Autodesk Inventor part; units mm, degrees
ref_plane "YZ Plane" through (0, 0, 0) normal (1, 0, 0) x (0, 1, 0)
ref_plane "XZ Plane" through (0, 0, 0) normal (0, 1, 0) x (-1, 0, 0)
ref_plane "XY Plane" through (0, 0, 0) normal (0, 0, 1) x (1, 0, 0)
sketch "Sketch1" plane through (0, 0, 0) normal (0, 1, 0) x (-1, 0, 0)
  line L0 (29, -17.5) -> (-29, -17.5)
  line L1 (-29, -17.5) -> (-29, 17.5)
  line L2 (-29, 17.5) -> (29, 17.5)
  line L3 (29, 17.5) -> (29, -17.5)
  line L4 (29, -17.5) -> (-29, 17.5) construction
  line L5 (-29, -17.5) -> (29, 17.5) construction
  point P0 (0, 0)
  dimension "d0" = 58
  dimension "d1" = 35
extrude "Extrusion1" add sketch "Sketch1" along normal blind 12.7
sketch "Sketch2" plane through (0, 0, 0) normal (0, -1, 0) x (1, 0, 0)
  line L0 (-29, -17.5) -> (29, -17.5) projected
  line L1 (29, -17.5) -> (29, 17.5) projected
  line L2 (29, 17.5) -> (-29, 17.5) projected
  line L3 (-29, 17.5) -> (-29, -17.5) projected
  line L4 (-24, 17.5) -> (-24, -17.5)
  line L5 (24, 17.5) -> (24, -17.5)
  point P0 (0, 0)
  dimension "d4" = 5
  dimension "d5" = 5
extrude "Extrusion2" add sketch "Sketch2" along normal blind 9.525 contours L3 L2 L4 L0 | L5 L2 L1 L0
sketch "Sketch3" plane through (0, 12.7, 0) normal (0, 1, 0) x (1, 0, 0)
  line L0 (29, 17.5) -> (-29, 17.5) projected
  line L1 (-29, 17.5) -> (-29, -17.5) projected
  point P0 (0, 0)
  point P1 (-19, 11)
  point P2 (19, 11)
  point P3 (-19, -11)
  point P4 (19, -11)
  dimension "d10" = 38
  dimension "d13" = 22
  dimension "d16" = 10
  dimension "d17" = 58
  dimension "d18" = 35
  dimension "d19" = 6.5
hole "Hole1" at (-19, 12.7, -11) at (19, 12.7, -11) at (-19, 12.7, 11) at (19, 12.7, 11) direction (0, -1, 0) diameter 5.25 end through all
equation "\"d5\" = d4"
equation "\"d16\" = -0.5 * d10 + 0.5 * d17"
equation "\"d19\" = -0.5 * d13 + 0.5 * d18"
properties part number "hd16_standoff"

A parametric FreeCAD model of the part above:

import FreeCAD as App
import Part
import Sketcher
from FreeCAD import Vector

doc = App.newDocument("Part")
body = doc.addObject("PartDesign::Body", "Body")

sketch1 = body.newObject("Sketcher::SketchObject", "Sketch")
sketch1.AttachmentSupport = (doc.getObject("XZ_Plane"), [""])
sketch1.MapMode = "FlatFace"
sketch1.addGeometry(Part.LineSegment(Vector(29, -17.5, 0), Vector(-29, -17.5, 0)), False)
sketch1.addGeometry(Part.LineSegment(Vector(-29, -17.5, 0), Vector(-29, 17.5, 0)), False)
sketch1.addGeometry(Part.LineSegment(Vector(-29, 17.5, 0), Vector(29, 17.5, 0)), False)
sketch1.addGeometry(Part.LineSegment(Vector(29, 17.5, 0), Vector(29, -17.5, 0)), False)
sketch1.addConstraint(Sketcher.Constraint("Coincident", 0, 2, 1, 1))
sketch1.addConstraint(Sketcher.Constraint("Coincident", 1, 2, 2, 1))
sketch1.addConstraint(Sketcher.Constraint("Coincident", 2, 2, 3, 1))
sketch1.addConstraint(Sketcher.Constraint("Coincident", 3, 2, 0, 1))
sketch1.addConstraint(Sketcher.Constraint("Horizontal", 0))
sketch1.addConstraint(Sketcher.Constraint("Vertical", 1))
sketch1.addConstraint(Sketcher.Constraint("Horizontal", 2))
sketch1.addConstraint(Sketcher.Constraint("Vertical", 3))
sketch1.addConstraint(Sketcher.Constraint("Symmetric", 0, 2, 2, 2, -1, 1))
sketch1.addConstraint(Sketcher.Constraint("DistanceX", 0, 2, 0, 1, 58.0))
sketch1.addConstraint(Sketcher.Constraint("DistanceY", 1, 1, 1, 2, 35.0))
pad1 = body.newObject("PartDesign::Pad", "Pad")
pad1.Profile = sketch1
pad1.Length = 12.7
pad1.Reversed = True

sketch2 = body.newObject("Sketcher::SketchObject", "Sketch001")
sketch2.AttachmentSupport = (doc.getObject("XZ_Plane"), [""])
sketch2.MapMode = "FlatFace"
sketch2.addGeometry(Part.LineSegment(Vector(-29, 17.5, 0), Vector(-29, -17.5, 0)), False)
sketch2.addGeometry(Part.LineSegment(Vector(-29, -17.5, 0), Vector(-24, -17.5, 0)), False)
sketch2.addGeometry(Part.LineSegment(Vector(-24, -17.5, 0), Vector(-24, 17.5, 0)), False)
sketch2.addGeometry(Part.LineSegment(Vector(-24, 17.5, 0), Vector(-29, 17.5, 0)), False)
sketch2.addGeometry(Part.LineSegment(Vector(24, 17.5, 0), Vector(24, -17.5, 0)), False)
sketch2.addGeometry(Part.LineSegment(Vector(24, -17.5, 0), Vector(29, -17.5, 0)), False)
sketch2.addGeometry(Part.LineSegment(Vector(29, -17.5, 0), Vector(29, 17.5, 0)), False)
sketch2.addGeometry(Part.LineSegment(Vector(29, 17.5, 0), Vector(24, 17.5, 0)), False)
sketch2.addConstraint(Sketcher.Constraint("Coincident", 0, 2, 1, 1))
sketch2.addConstraint(Sketcher.Constraint("Coincident", 1, 2, 2, 1))
sketch2.addConstraint(Sketcher.Constraint("Coincident", 2, 2, 3, 1))
sketch2.addConstraint(Sketcher.Constraint("Coincident", 3, 2, 0, 1))
sketch2.addConstraint(Sketcher.Constraint("Coincident", 4, 2, 5, 1))
sketch2.addConstraint(Sketcher.Constraint("Coincident", 5, 2, 6, 1))
sketch2.addConstraint(Sketcher.Constraint("Coincident", 6, 2, 7, 1))
sketch2.addConstraint(Sketcher.Constraint("Coincident", 7, 2, 4, 1))
sketch2.addConstraint(Sketcher.Constraint("Vertical", 0))
sketch2.addConstraint(Sketcher.Constraint("Horizontal", 1))
sketch2.addConstraint(Sketcher.Constraint("Vertical", 2))
sketch2.addConstraint(Sketcher.Constraint("Horizontal", 3))
sketch2.addConstraint(Sketcher.Constraint("Vertical", 4))
sketch2.addConstraint(Sketcher.Constraint("Horizontal", 5))
sketch2.addConstraint(Sketcher.Constraint("Vertical", 6))
sketch2.addConstraint(Sketcher.Constraint("Horizontal", 7))
sketch2.addConstraint(Sketcher.Constraint("Symmetric", 2, 2, 4, 2, -1, 1))
sketch2.addConstraint(Sketcher.Constraint("Symmetric", 0, 2, 6, 2, -1, 1))
sketch2.addConstraint(Sketcher.Constraint("Horizontal", 1, 2, 4, 2))
sketch2.addConstraint(Sketcher.Constraint("DistanceX", 1, 1, 1, 2, 5.0))
sketch2.addConstraint(Sketcher.Constraint("DistanceY", 0, 2, 0, 1, 35.0))
sketch2.addConstraint(Sketcher.Constraint("DistanceX", 0, 2, -1, 1, 29.0))
pad2 = body.newObject("PartDesign::Pad", "Pad001")
pad2.Profile = sketch2
pad2.Length = 9.525

sketch3 = body.newObject("Sketcher::SketchObject", "Sketch002")
sketch3.AttachmentSupport = (doc.getObject("XZ_Plane"), [""])
sketch3.MapMode = "FlatFace"
sketch3.AttachmentOffset = App.Placement(Vector(0, 0, -12.7), App.Rotation())
sketch3.addGeometry(Part.Circle(Vector(-19, -11, 0), Vector(0, 0, 1), 2.625), False)
sketch3.addGeometry(Part.Circle(Vector(19, -11, 0), Vector(0, 0, 1), 2.625), False)
sketch3.addGeometry(Part.Circle(Vector(-19, 11, 0), Vector(0, 0, 1), 2.625), False)
sketch3.addGeometry(Part.Circle(Vector(19, 11, 0), Vector(0, 0, 1), 2.625), False)
sketch3.addConstraint(Sketcher.Constraint("Equal", 0, 1))
sketch3.addConstraint(Sketcher.Constraint("Equal", 1, 2))
sketch3.addConstraint(Sketcher.Constraint("Equal", 2, 3))
sketch3.addConstraint(Sketcher.Constraint("Symmetric", 1, 3, 2, 3, -1, 1))
sketch3.addConstraint(Sketcher.Constraint("Symmetric", 0, 3, 3, 3, -1, 1))
sketch3.addConstraint(Sketcher.Constraint("Symmetric", 0, 3, 1, 3, -2))
sketch3.addConstraint(Sketcher.Constraint("Diameter", 0, 5.25))
sketch3.addConstraint(Sketcher.Constraint("DistanceX", 0, 3, -1, 1, 19.0))
sketch3.addConstraint(Sketcher.Constraint("DistanceY", 0, 3, -1, 1, 11.0))
doc.recompute()
hole = body.newObject("PartDesign::Hole", "Hole")
hole.Profile = sketch3
hole.ThreadType = "None"
hole.Diameter = 5.25
hole.DepthType = "ThroughAll"
hole.Reversed = True

doc.recompute()
